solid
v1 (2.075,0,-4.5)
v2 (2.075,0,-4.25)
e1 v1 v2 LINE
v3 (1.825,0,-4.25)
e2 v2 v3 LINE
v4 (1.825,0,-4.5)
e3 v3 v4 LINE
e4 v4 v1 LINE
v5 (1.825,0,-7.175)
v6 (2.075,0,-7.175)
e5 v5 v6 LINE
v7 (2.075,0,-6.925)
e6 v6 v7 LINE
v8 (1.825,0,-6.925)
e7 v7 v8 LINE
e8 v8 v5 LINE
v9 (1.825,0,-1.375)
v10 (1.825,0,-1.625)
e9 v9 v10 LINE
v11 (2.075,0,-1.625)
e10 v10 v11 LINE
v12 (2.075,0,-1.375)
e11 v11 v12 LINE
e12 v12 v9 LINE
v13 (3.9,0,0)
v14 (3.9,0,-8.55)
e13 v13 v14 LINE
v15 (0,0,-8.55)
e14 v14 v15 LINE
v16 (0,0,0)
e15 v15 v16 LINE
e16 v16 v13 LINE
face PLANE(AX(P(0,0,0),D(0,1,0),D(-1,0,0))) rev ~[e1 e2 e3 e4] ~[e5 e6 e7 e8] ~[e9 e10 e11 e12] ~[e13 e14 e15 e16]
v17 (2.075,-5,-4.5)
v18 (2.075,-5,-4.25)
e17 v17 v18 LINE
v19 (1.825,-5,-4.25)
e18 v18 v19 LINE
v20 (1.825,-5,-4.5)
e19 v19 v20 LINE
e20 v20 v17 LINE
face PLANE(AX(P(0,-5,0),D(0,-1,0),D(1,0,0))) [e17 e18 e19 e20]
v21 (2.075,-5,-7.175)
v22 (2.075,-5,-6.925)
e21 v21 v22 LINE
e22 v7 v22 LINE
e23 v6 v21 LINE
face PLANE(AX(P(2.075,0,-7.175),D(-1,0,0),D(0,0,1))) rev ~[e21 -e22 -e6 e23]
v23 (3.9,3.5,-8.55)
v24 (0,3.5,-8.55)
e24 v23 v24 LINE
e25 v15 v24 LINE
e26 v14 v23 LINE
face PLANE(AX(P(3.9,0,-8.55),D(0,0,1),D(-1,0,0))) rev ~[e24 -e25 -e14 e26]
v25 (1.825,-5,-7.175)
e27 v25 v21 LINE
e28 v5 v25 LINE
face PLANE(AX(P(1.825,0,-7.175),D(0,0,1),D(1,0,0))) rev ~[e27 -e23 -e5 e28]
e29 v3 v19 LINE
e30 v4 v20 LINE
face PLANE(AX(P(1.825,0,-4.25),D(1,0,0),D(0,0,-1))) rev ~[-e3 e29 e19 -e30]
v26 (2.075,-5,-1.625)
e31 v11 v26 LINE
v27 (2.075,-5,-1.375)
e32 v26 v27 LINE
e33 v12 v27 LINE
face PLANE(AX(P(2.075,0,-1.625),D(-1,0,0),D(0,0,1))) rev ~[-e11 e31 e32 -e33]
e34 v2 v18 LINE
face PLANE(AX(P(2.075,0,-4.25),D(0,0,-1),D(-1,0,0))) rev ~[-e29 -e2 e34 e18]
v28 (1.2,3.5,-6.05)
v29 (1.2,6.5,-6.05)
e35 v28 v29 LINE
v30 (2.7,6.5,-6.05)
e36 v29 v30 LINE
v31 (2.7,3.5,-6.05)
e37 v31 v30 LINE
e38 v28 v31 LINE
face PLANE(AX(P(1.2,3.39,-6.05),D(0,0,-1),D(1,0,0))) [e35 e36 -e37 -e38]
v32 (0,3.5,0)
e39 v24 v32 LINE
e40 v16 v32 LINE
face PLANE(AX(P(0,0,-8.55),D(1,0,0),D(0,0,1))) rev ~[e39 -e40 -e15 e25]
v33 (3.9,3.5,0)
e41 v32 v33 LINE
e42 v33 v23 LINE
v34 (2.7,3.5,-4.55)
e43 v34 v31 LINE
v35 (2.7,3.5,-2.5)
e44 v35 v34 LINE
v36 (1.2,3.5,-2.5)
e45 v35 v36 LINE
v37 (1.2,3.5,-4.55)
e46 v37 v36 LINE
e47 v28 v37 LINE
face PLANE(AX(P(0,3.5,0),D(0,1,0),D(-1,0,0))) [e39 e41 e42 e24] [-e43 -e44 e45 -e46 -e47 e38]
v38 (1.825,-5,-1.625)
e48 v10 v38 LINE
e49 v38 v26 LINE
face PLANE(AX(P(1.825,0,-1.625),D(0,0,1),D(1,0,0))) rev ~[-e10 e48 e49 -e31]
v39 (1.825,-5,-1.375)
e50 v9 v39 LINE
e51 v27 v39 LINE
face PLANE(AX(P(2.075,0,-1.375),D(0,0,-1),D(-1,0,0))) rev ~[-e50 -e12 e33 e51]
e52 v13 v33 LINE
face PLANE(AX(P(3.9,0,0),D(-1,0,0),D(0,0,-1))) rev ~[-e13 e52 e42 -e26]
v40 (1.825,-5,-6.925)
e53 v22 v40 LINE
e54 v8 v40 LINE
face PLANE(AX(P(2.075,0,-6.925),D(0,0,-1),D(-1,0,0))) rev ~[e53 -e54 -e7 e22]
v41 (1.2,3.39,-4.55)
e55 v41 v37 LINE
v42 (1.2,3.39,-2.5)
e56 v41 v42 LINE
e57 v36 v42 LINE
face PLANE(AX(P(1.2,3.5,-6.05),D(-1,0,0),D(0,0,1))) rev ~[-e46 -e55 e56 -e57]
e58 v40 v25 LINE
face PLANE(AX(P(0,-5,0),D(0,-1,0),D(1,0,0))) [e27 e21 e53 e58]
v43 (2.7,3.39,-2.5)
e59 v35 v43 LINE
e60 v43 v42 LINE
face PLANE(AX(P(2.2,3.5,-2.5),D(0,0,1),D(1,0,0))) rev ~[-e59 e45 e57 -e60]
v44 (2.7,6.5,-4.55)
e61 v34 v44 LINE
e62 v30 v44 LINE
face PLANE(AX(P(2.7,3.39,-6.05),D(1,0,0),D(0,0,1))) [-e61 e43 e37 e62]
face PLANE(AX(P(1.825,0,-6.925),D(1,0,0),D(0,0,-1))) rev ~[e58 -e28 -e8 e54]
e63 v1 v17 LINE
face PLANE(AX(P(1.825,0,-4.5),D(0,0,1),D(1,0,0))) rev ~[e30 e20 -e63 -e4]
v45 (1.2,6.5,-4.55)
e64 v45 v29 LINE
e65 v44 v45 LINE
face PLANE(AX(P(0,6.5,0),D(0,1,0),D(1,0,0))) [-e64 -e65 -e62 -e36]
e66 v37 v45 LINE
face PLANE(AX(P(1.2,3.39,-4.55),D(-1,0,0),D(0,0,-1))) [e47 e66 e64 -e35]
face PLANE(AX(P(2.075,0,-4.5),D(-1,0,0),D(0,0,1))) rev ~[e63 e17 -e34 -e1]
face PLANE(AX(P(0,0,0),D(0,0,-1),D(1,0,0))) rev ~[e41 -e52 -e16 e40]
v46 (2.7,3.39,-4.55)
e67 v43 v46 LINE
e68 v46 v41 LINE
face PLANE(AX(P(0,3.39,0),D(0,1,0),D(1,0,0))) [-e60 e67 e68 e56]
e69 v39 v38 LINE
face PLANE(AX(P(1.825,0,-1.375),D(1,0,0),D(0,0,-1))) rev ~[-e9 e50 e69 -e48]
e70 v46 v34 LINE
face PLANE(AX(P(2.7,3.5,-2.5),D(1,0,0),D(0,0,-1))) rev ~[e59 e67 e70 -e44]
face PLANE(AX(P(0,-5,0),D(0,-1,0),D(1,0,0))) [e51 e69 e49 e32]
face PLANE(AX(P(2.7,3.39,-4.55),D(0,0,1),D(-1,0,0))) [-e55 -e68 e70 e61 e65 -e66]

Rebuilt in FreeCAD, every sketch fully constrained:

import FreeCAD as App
import Part
import Sketcher

V = App.Vector
Q = App.Units.Quantity

doc = App.newDocument("Part")
body = doc.addObject("PartDesign::Body", "Body")

# Sketch on XZ plane
sketch1 = doc.addObject("Sketcher::SketchObject", "Sketch")
body.addObject(sketch1)
sketch1.AttachmentSupport = (doc.XZ_Plane, [""])
sketch1.MapMode = "FlatFace"
sketch1.addGeometry(Part.LineSegment(V(0, -8.6, 0), V(0, 0, 0)), False)
sketch1.addGeometry(Part.LineSegment(V(0, 0, 0), V(3.9, 0, 0)), False)
sketch1.addGeometry(Part.LineSegment(V(3.9, 0, 0), V(3.9, -8.6, 0)), False)
sketch1.addGeometry(Part.LineSegment(V(3.9, -8.6, 0), V(0, -8.6, 0)), False)
sketch1.addConstraint(Sketcher.Constraint("Coincident", 0, 2, 1, 1))
sketch1.addConstraint(Sketcher.Constraint("Coincident", 1, 2, 2, 1))
sketch1.addConstraint(Sketcher.Constraint("Coincident", 2, 2, 3, 1))
sketch1.addConstraint(Sketcher.Constraint("Coincident", 3, 2, 0, 1))
sketch1.addConstraint(Sketcher.Constraint("Vertical", 0))
sketch1.addConstraint(Sketcher.Constraint("Horizontal", 1))
sketch1.addConstraint(Sketcher.Constraint("Vertical", 2))
sketch1.addConstraint(Sketcher.Constraint("Horizontal", 3))
sketch1.addConstraint(Sketcher.Constraint("Coincident", 0, 2, -1, 1))
sketch1.addConstraint(Sketcher.Constraint("DistanceX", 1, 1, 1, 2, Q("3.9 mm")))
sketch1.addConstraint(Sketcher.Constraint("DistanceY", 0, 1, 0, 2, Q("8.55 mm")))
pad1 = doc.addObject("PartDesign::Pad", "Pad")
body.addObject(pad1)
pad1.Profile = sketch1
pad1.Length = 3.5
pad1.Reversed = True

# Sketch on XZ plane
sketch2 = doc.addObject("Sketcher::SketchObject", "Sketch001")
body.addObject(sketch2)
sketch2.AttachmentSupport = (doc.XZ_Plane, [""])
sketch2.MapMode = "FlatFace"
sketch2.AttachmentOffset = App.Placement(V(0, 0, -3.5), App.Rotation())
sketch2.addGeometry(Part.LineSegment(V(1.2, -2.5, 0), V(2.7, -2.5, 0)), False)
sketch2.addGeometry(Part.LineSegment(V(2.7, -2.5, 0), V(2.7, -6, 0)), False)
sketch2.addGeometry(Part.LineSegment(V(2.7, -6, 0), V(1.2, -6, 0)), False)
sketch2.addGeometry(Part.LineSegment(V(1.2, -6, 0), V(1.2, -2.5, 0)), False)
sketch2.addConstraint(Sketcher.Constraint("Coincident", 0, 2, 1, 1))
sketch2.addConstraint(Sketcher.Constraint("Coincident", 1, 2, 2, 1))
sketch2.addConstraint(Sketcher.Constraint("Coincident", 2, 2, 3, 1))
sketch2.addConstraint(Sketcher.Constraint("Coincident", 3, 2, 0, 1))
sketch2.addConstraint(Sketcher.Constraint("Horizontal", 0))
sketch2.addConstraint(Sketcher.Constraint("Vertical", 1))
sketch2.addConstraint(Sketcher.Constraint("Horizontal", 2))
sketch2.addConstraint(Sketcher.Constraint("Vertical", 3))
sketch2.addConstraint(Sketcher.Constraint("DistanceY", 0, 2, -1, 1, Q("2.5 mm")))
sketch2.addConstraint(Sketcher.Constraint("DistanceX", 0, 1, 0, 2, Q("1.5 mm")))
sketch2.addConstraint(Sketcher.Constraint("DistanceY", 1, 2, 1, 1, Q("3.55 mm")))
sketch2.addConstraint(Sketcher.Constraint("DistanceX", -1, 1, 0, 2, Q("2.7 mm")))
pocket1 = doc.addObject("PartDesign::Pocket", "Pocket")
body.addObject(pocket1)
pocket1.Profile = sketch2
pocket1.Length = 0.11
pocket1.Reversed = True

# Sketch on XZ plane
sketch3 = doc.addObject("Sketcher::SketchObject", "Sketch002")
body.addObject(sketch3)
sketch3.AttachmentSupport = (doc.XZ_Plane, [""])
sketch3.MapMode = "FlatFace"
sketch3.AttachmentOffset = App.Placement(V(0, 0, -3.39), App.Rotation())
sketch3.addGeometry(Part.LineSegment(V(1.2, -6, 0), V(1.2, -4.5, 0)), False)
sketch3.addGeometry(Part.LineSegment(V(1.2, -4.5, 0), V(2.7, -4.5, 0)), False)
sketch3.addGeometry(Part.LineSegment(V(2.7, -4.5, 0), V(2.7, -6, 0)), False)
sketch3.addGeometry(Part.LineSegment(V(2.7, -6, 0), V(1.2, -6, 0)), False)
sketch3.addConstraint(Sketcher.Constraint("Coincident", 0, 2, 1, 1))
sketch3.addConstraint(Sketcher.Constraint("Coincident", 1, 2, 2, 1))
sketch3.addConstraint(Sketcher.Constraint("Coincident", 2, 2, 3, 1))
sketch3.addConstraint(Sketcher.Constraint("Coincident", 3, 2, 0, 1))
sketch3.addConstraint(Sketcher.Constraint("Vertical", 0))
sketch3.addConstraint(Sketcher.Constraint("Horizontal", 1))
sketch3.addConstraint(Sketcher.Constraint("Vertical", 2))
sketch3.addConstraint(Sketcher.Constraint("Horizontal", 3))
sketch3.addConstraint(Sketcher.Constraint("Equal", 3, 0))
sketch3.addConstraint(Sketcher.Constraint("DistanceX", 1, 1, 1, 2, Q("1.5 mm")))
sketch3.addConstraint(Sketcher.Constraint("DistanceX", -1, 1, 0, 2, Q("1.2 mm")))
sketch3.addConstraint(Sketcher.Constraint("DistanceY", 0, 2, -1, 1, Q("4.55 mm")))
pad2 = doc.addObject("PartDesign::Pad", "Pad001")
body.addObject(pad2)
pad2.Profile = sketch3
pad2.Length = 3.11
pad2.Reversed = True

# Sketch on XZ plane
sketch4 = doc.addObject("Sketcher::SketchObject", "Sketch003")
body.addObject(sketch4)
sketch4.AttachmentSupport = (doc.XZ_Plane, [""])
sketch4.MapMode = "FlatFace"
sketch4.addGeometry(Part.LineSegment(V(1.82, -1.38, 0), V(1.82, -1.62, 0)), False)
sketch4.addGeometry(Part.LineSegment(V(1.82, -1.62, 0), V(2.08, -1.62, 0)), False)
sketch4.addGeometry(Part.LineSegment(V(2.08, -1.62, 0), V(2.08, -1.38, 0)), False)
sketch4.addGeometry(Part.LineSegment(V(2.08, -1.38, 0), V(1.82, -1.38, 0)), False)
sketch4.addGeometry(Part.LineSegment(V(1.82, -6.92, 0), V(1.82, -7.17, 0)), False)
sketch4.addGeometry(Part.LineSegment(V(1.82, -7.17, 0), V(2.08, -7.17, 0)), False)
sketch4.addGeometry(Part.LineSegment(V(2.08, -7.17, 0), V(2.08, -6.92, 0)), False)
sketch4.addGeometry(Part.LineSegment(V(2.08, -6.92, 0), V(1.82, -6.92, 0)), False)
sketch4.addGeometry(Part.LineSegment(V(1.82, -4.25, 0), V(1.82, -4.5, 0)), False)
sketch4.addGeometry(Part.LineSegment(V(1.82, -4.5, 0), V(2.08, -4.5, 0)), False)
sketch4.addGeometry(Part.LineSegment(V(2.08, -4.5, 0), V(2.08, -4.25, 0)), False)
sketch4.addGeometry(Part.LineSegment(V(2.08, -4.25, 0), V(1.82, -4.25, 0)), False)
sketch4.addConstraint(Sketcher.Constraint("Coincident", 0, 2, 1, 1))
sketch4.addConstraint(Sketcher.Constraint("Coincident", 1, 2, 2, 1))
sketch4.addConstraint(Sketcher.Constraint("Coincident", 2, 2, 3, 1))
sketch4.addConstraint(Sketcher.Constraint("Coincident", 3, 2, 0, 1))
sketch4.addConstraint(Sketcher.Constraint("Coincident", 4, 2, 5, 1))
sketch4.addConstraint(Sketcher.Constraint("Coincident", 5, 2, 6, 1))
sketch4.addConstraint(Sketcher.Constraint("Coincident", 6, 2, 7, 1))
sketch4.addConstraint(Sketcher.Constraint("Coincident", 7, 2, 4, 1))
sketch4.addConstraint(Sketcher.Constraint("Coincident", 8, 2, 9, 1))
sketch4.addConstraint(Sketcher.Constraint("Coincident", 9, 2, 10, 1))
sketch4.addConstraint(Sketcher.Constraint("Coincident", 10, 2, 11, 1))
sketch4.addConstraint(Sketcher.Constraint("Coincident", 11, 2, 8, 1))
sketch4.addConstraint(Sketcher.Constraint("Vertical", 0))
sketch4.addConstraint(Sketcher.Constraint("Horizontal", 1))
sketch4.addConstraint(Sketcher.Constraint("Vertical", 2))
sketch4.addConstraint(Sketcher.Constraint("Horizontal", 3))
sketch4.addConstraint(Sketcher.Constraint("Vertical", 4))
sketch4.addConstraint(Sketcher.Constraint("Horizontal", 5))
sketch4.addConstraint(Sketcher.Constraint("Vertical", 6))
sketch4.addConstraint(Sketcher.Constraint("Horizontal", 7))
sketch4.addConstraint(Sketcher.Constraint("Vertical", 8))
sketch4.addConstraint(Sketcher.Constraint("Horizontal", 9))
sketch4.addConstraint(Sketcher.Constraint("Vertical", 10))
sketch4.addConstraint(Sketcher.Constraint("Horizontal", 11))
sketch4.addConstraint(Sketcher.Constraint("Vertical", 3, 2, 4, 2))
sketch4.addConstraint(Sketcher.Constraint("Vertical", 2, 2, 5, 2))
sketch4.addConstraint(Sketcher.Constraint("Vertical", 7, 2, 8, 2))
sketch4.addConstraint(Sketcher.Constraint("Vertical", 6, 2, 9, 2))
sketch4.addConstraint(Sketcher.Constraint("Equal", 11, 0))
sketch4.addConstraint(Sketcher.Constraint("Equal", 2, 4))
sketch4.addConstraint(Sketcher.Constraint("Equal", 6, 8))
sketch4.addConstraint(Sketcher.Constraint("DistanceX", 1, 1, 1, 2, Q("0.25 mm")))
sketch4.addConstraint(Sketcher.Constraint("DistanceY", 8, 2, -1, 1, Q("4.5 mm")))
sketch4.addConstraint(Sketcher.Constraint("DistanceY", 4, 2, 3, 2, Q("5.8 mm")))
sketch4.addConstraint(Sketcher.Constraint("DistanceX", -1, 1, 0, 2, Q("1.825 mm")))
sketch4.addConstraint(Sketcher.Constraint("DistanceY", 0, 2, -1, 1, Q("1.625 mm")))
pad3 = doc.addObject("PartDesign::Pad", "Pad002")
body.addObject(pad3)
pad3.Profile = sketch4
pad3.Length = 5

doc.recompute()
